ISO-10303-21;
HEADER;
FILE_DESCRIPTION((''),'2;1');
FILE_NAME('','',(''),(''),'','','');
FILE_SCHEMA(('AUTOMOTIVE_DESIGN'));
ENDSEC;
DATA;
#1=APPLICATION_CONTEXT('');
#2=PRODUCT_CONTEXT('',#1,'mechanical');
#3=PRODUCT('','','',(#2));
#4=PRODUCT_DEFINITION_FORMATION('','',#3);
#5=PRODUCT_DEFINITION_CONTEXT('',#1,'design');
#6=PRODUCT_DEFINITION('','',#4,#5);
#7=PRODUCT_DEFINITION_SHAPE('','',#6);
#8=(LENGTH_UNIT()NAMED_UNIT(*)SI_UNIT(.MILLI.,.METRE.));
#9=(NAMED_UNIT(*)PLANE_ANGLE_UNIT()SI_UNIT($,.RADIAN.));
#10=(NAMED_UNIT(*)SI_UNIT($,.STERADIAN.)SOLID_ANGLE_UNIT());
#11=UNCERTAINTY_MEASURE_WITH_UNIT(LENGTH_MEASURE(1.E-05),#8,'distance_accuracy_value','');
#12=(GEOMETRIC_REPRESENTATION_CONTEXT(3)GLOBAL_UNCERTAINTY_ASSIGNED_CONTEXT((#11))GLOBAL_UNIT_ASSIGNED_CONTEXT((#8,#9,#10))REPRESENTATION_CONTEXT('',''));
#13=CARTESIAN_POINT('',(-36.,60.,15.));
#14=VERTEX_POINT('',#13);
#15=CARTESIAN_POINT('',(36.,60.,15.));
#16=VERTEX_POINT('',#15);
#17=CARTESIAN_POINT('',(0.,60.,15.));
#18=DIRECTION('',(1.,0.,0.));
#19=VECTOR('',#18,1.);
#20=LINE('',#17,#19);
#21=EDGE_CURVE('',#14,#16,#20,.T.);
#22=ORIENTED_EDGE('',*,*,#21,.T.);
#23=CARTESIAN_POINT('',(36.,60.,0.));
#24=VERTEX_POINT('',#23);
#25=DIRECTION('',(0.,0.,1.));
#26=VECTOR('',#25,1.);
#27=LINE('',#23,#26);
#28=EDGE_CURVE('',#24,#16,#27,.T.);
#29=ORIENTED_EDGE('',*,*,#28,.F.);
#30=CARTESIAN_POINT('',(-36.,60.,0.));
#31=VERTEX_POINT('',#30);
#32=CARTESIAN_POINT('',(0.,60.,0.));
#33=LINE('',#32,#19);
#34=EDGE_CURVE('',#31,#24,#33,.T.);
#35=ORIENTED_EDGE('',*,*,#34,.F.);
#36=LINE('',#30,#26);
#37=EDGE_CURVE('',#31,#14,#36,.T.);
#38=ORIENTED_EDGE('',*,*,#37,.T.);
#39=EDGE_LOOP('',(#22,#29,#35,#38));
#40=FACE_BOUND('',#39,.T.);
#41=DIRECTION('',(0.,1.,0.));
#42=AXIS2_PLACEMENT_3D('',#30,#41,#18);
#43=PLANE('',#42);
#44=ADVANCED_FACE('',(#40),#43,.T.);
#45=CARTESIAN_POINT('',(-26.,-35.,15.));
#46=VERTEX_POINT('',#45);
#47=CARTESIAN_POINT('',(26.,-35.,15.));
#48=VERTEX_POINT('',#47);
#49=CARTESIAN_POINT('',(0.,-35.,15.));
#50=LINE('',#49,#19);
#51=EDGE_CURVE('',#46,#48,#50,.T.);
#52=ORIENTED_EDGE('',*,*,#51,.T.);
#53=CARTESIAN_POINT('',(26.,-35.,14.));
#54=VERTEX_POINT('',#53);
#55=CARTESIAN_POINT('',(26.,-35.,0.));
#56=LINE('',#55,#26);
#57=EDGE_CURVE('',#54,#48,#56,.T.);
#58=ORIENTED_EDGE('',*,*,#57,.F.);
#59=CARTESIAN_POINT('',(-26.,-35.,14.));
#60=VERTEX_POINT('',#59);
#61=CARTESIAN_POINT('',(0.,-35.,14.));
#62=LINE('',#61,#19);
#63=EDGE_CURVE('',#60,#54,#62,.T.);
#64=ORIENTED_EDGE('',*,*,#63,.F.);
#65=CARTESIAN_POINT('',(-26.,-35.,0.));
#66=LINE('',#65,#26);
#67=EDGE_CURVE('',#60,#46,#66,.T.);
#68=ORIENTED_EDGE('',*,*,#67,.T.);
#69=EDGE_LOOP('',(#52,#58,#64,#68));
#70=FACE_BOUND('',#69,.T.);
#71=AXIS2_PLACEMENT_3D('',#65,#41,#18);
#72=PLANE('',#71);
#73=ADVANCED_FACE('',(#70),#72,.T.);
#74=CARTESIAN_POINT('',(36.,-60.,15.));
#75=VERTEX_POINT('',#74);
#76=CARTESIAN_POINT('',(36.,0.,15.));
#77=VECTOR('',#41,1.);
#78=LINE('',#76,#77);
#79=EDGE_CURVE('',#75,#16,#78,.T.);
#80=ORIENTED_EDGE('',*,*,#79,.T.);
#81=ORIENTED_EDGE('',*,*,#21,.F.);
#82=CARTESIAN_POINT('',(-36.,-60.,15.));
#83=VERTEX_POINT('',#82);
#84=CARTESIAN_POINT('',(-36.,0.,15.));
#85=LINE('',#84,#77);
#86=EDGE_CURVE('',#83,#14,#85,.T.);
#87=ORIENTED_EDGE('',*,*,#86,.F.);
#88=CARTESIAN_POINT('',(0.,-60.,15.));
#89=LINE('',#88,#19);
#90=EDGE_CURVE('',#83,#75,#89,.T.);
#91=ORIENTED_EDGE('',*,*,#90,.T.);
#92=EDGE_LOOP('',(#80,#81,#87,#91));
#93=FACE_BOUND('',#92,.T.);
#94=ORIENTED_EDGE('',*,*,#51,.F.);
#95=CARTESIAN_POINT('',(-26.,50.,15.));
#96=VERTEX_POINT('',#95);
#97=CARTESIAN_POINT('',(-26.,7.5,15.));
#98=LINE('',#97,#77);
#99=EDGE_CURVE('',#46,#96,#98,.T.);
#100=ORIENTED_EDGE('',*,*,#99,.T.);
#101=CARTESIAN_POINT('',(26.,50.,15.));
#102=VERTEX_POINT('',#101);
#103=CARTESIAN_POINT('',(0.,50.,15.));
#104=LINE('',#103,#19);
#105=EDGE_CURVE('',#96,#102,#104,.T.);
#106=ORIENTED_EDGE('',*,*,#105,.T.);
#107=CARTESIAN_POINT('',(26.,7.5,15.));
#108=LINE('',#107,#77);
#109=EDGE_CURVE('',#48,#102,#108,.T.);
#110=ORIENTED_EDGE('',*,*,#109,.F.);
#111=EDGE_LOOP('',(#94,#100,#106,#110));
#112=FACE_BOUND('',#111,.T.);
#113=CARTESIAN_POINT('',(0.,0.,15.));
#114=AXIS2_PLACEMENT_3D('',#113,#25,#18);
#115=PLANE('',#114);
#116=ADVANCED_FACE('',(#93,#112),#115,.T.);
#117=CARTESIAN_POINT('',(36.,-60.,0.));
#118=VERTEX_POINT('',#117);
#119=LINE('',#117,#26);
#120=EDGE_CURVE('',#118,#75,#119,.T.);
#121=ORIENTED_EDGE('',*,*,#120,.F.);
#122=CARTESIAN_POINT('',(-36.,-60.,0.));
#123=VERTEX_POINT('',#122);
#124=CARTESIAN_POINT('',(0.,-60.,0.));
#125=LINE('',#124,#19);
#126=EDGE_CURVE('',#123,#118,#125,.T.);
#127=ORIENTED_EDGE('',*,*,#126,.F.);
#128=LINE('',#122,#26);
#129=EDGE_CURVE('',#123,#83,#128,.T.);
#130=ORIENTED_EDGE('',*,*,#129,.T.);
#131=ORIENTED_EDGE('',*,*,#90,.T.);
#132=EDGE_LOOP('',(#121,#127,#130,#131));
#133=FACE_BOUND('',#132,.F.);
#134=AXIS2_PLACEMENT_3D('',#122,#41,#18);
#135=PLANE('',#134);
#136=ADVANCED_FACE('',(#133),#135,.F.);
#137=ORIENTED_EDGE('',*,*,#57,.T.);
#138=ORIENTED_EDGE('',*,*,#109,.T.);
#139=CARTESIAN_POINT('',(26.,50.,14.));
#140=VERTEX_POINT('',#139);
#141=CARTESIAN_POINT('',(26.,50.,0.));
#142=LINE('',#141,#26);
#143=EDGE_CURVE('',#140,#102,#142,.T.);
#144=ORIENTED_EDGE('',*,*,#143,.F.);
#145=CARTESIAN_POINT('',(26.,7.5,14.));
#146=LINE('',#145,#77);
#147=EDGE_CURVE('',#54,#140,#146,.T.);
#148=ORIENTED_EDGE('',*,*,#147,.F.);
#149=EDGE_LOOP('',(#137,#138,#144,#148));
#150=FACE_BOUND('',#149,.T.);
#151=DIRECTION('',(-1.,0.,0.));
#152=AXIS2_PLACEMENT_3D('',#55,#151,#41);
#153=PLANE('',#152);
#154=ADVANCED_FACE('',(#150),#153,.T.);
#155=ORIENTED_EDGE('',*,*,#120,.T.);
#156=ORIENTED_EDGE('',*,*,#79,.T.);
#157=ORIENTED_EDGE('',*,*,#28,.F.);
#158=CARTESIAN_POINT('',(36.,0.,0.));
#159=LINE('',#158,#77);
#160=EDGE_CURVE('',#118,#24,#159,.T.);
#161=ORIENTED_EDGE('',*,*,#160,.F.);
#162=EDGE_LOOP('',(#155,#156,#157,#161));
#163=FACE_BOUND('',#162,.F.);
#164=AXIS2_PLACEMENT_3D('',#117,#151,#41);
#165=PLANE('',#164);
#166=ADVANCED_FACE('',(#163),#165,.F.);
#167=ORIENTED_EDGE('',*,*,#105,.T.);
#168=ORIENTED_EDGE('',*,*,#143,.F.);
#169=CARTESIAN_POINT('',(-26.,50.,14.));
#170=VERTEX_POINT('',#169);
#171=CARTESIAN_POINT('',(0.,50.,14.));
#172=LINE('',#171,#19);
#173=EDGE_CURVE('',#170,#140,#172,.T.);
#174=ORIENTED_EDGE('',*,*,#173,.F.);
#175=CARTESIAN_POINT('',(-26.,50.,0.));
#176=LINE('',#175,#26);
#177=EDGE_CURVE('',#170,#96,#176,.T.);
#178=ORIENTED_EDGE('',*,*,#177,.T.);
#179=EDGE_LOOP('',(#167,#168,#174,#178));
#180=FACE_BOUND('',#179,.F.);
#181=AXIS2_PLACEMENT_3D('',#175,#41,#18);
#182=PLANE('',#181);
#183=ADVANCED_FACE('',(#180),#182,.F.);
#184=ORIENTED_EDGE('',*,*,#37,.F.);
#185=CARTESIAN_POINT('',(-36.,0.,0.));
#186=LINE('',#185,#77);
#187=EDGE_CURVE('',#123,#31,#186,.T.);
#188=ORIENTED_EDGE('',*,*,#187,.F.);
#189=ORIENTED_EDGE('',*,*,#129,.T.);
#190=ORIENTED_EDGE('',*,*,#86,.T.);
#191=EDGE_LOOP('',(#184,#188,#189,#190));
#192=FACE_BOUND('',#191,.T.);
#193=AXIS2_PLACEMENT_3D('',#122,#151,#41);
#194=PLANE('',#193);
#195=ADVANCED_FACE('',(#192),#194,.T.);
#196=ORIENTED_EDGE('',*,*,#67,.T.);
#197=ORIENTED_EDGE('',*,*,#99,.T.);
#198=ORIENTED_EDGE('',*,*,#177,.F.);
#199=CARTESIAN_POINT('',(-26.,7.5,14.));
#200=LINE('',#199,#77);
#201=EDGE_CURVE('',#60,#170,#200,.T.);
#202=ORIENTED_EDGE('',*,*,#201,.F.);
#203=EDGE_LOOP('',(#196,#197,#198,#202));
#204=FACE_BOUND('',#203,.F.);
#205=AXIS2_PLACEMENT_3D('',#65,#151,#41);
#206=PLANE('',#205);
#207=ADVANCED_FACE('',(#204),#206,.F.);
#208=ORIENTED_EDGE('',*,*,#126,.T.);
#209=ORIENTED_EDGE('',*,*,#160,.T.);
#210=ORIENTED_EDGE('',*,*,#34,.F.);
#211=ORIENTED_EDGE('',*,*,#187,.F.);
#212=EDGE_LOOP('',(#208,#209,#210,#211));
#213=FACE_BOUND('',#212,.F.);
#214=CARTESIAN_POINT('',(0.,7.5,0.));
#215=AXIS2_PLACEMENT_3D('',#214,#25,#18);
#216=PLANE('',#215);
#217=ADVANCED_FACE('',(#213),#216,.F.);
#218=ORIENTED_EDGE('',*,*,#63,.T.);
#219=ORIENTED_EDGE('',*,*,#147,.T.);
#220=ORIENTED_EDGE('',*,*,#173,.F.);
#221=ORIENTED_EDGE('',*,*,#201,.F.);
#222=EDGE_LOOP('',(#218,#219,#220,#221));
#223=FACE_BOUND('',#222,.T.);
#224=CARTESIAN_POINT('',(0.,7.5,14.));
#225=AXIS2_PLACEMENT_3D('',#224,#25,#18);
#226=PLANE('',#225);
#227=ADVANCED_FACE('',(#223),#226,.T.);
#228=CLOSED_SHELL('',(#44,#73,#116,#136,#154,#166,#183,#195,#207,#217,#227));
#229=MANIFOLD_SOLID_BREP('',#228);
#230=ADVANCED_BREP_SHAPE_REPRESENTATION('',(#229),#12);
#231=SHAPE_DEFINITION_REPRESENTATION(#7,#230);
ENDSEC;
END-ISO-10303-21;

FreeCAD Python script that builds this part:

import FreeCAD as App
import Part
import Sketcher
from FreeCAD import Vector
Q = App.Units.Quantity

doc = App.newDocument("Part")
body = doc.addObject("PartDesign::Body", "Body")

sketch1 = body.newObject("Sketcher::SketchObject", "Sketch")
sketch1.AttachmentSupport = (doc.getObject("XY_Plane"), [""])
sketch1.MapMode = "FlatFace"
sketch1.addGeometry([
    Part.LineSegment(Vector(-36, 60, 0), Vector(-36, -60, 0)),
    Part.LineSegment(Vector(-36, -60, 0), Vector(36, -60, 0)),
    Part.LineSegment(Vector(36, -60, 0), Vector(36, 60, 0)),
    Part.LineSegment(Vector(36, 60, 0), Vector(-36, 60, 0)),
    Part.LineSegment(Vector(26, -35, 0), Vector(-26, -35, 0)),
    Part.LineSegment(Vector(-26, -35, 0), Vector(-26, 50, 0)),
    Part.LineSegment(Vector(-26, 50, 0), Vector(26, 50, 0)),
    Part.LineSegment(Vector(26, 50, 0), Vector(26, -35, 0)),
], False)
sketch1.addConstraint([
    Sketcher.Constraint("Coincident", 0, 2, 1, 1),
    Sketcher.Constraint("Coincident", 1, 2, 2, 1),
    Sketcher.Constraint("Coincident", 2, 2, 3, 1),
    Sketcher.Constraint("Coincident", 3, 2, 0, 1),
    Sketcher.Constraint("Coincident", 4, 2, 5, 1),
    Sketcher.Constraint("Coincident", 5, 2, 6, 1),
    Sketcher.Constraint("Coincident", 6, 2, 7, 1),
    Sketcher.Constraint("Coincident", 7, 2, 4, 1),
    Sketcher.Constraint("Vertical", 0),
    Sketcher.Constraint("Horizontal", 1),
    Sketcher.Constraint("Vertical", 2),
    Sketcher.Constraint("Horizontal", 3),
    Sketcher.Constraint("Horizontal", 4),
    Sketcher.Constraint("Vertical", 5),
    Sketcher.Constraint("Horizontal", 6),
    Sketcher.Constraint("Vertical", 7),
    Sketcher.Constraint("Symmetric", 0, 2, 2, 2, -1, 1),
    Sketcher.Constraint("DistanceX", 1, 1, 1, 2, Q("72 mm")),
    Sketcher.Constraint("DistanceX", 4, 2, 4, 1, Q("52 mm")),
    Sketcher.Constraint("DistanceY", 0, 2, 0, 1, Q("120 mm")),
    Sketcher.Constraint("DistanceY", 5, 1, 5, 2, Q("85 mm")),
    Sketcher.Constraint("DistanceX", 4, 2, -1, 1, Q("26 mm")),
    Sketcher.Constraint("DistanceY", 4, 2, -1, 1, Q("35 mm")),
])
pad1 = body.newObject("PartDesign::Pad", "Pad")
pad1.Profile = sketch1
pad1.Length = 15

sketch2 = body.newObject("Sketcher::SketchObject", "Sketch001")
sketch2.AttachmentSupport = (doc.getObject("XY_Plane"), [""])
sketch2.MapMode = "FlatFace"
sketch2.addGeometry([
    Part.LineSegment(Vector(-26, 50, 0), Vector(-26, -35, 0)),
    Part.LineSegment(Vector(-26, -35, 0), Vector(26, -35, 0)),
    Part.LineSegment(Vector(26, -35, 0), Vector(26, 50, 0)),
    Part.LineSegment(Vector(26, 50, 0), Vector(-26, 50, 0)),
], False)
sketch2.addConstraint([
    Sketcher.Constraint("Coincident", 0, 2, 1, 1),
    Sketcher.Constraint("Coincident", 1, 2, 2, 1),
    Sketcher.Constraint("Coincident", 2, 2, 3, 1),
    Sketcher.Constraint("Coincident", 3, 2, 0, 1),
    Sketcher.Constraint("Vertical", 0),
    Sketcher.Constraint("Horizontal", 1),
    Sketcher.Constraint("Vertical", 2),
    Sketcher.Constraint("Horizontal", 3),
    Sketcher.Constraint("DistanceX", 1, 1, 1, 2, Q("52 mm")),
    Sketcher.Constraint("DistanceY", 0, 2, 0, 1, Q("85 mm")),
    Sketcher.Constraint("DistanceX", 0, 2, -1, 1, Q("26 mm")),
    Sketcher.Constraint("DistanceY", 0, 2, -1, 1, Q("35 mm")),
])
pad2 = body.newObject("PartDesign::Pad", "Pad001")
pad2.Profile = sketch2
pad2.Length = 14

doc.recompute()
